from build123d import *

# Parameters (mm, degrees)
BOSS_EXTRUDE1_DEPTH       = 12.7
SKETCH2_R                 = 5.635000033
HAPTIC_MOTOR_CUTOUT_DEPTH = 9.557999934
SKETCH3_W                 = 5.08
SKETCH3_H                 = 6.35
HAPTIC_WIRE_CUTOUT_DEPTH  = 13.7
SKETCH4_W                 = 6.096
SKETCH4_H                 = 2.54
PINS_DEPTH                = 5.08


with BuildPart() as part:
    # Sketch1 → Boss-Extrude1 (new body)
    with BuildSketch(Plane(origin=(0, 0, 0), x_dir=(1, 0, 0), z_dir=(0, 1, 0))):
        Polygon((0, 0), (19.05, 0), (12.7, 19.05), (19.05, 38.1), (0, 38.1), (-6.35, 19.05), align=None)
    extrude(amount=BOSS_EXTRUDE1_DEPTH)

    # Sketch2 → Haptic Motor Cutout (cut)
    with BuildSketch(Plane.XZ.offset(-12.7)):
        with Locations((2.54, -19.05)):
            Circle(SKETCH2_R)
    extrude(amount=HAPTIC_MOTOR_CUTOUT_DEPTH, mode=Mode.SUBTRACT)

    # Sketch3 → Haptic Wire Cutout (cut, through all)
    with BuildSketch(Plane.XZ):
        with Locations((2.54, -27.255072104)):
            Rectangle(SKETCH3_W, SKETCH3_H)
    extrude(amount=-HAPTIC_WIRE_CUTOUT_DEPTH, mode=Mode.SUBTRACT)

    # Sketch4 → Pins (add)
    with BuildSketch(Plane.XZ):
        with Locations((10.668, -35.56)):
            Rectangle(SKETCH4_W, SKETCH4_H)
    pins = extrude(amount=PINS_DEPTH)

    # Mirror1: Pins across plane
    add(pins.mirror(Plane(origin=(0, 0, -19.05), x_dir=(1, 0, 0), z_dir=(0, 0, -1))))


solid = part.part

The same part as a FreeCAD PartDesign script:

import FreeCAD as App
import Part
import Sketcher
Q = App.Units.Quantity


def add_polygon(sketch, points):
    """Adds a closed chain of lines whose ends are joined by coincident constraints."""
    first, n = sketch.GeometryCount, len(points)
    for a, b in zip(points, points[1:] + points[:1]):
        sketch.addGeometry(Part.LineSegment(App.Vector(*a, 0), App.Vector(*b, 0)), False)
    for i in range(n):
        sketch.addConstraint(Sketcher.Constraint("Coincident", first + i, 2, first + (i + 1) % n, 1))

doc = App.newDocument("Part")
body = doc.addObject("PartDesign::Body", "Body")

# Sketch on XZ plane
sketch1 = doc.addObject("Sketcher::SketchObject", "Sketch")
body.addObject(sketch1)
sketch1.AttachmentSupport = (doc.XZ_Plane, [""])
sketch1.MapMode = "FlatFace"
add_polygon(sketch1, [(0, 0), (19, 0), (13, -19), (19, -38), (0, -38), (-6, -19)])  # lines 0-5
sketch1.addConstraint([
    Sketcher.Constraint("Horizontal", 0),
    Sketcher.Constraint("Horizontal", 3),
    Sketcher.Constraint("Coincident", 5, 2, -1, 1),
    Sketcher.Constraint("PointOnObject", 3, 2, -2),
    Sketcher.Constraint("Parallel", 2, 4),
    Sketcher.Constraint("Parallel", 1, 5),
    Sketcher.Constraint("Horizontal", 1, 2, 4, 2),
    Sketcher.Constraint("Equal", 1, 2),
    Sketcher.Constraint("DistanceX", 4, 2, 0, 2, Q("1 in")),
    Sketcher.Constraint("DistanceX", 0, 1, 0, 2, Q("0.75 in")),
    Sketcher.Constraint("DistanceY", 2, 2, -1, 1, Q("1.5 in")),
])
pad1 = doc.addObject("PartDesign::Pad", "Pad")
body.addObject(pad1)
pad1.Profile = sketch1
pad1.Length = Q("0.5 in")
pad1.Reversed = True

# Sketch on XZ plane
sketch2 = doc.addObject("Sketcher::SketchObject", "Sketch001")
body.addObject(sketch2)
sketch2.AttachmentSupport = (doc.XZ_Plane, [""])
sketch2.MapMode = "FlatFace"
sketch2.AttachmentOffset = App.Placement(App.Vector(0, 0, -0.5 * 25.4), App.Rotation())
sketch2.addGeometry(Part.Circle(App.Vector(3, -19, 0), App.Vector(0, 0, 1), 6), False)
sketch2.addConstraint([
    Sketcher.Constraint("DistanceX", -1, 1, 0, 3, Q("0.1 in")),
    Sketcher.Constraint("Diameter", 0, 11.27),
    Sketcher.Constraint("DistanceY", 0, 3, -1, 1, Q("0.75 in")),
])
pocket1 = doc.addObject("PartDesign::Pocket", "Pocket")
body.addObject(pocket1)
pocket1.Profile = sketch2
pocket1.Length = 9.558
pocket1.Reversed = True

# Sketch on XZ plane
sketch3 = doc.addObject("Sketcher::SketchObject", "Sketch002")
body.addObject(sketch3)
sketch3.AttachmentSupport = (doc.XZ_Plane, [""])
sketch3.MapMode = "FlatFace"
add_polygon(sketch3, [(0, -24), (0, -30), (5, -30), (5, -24)])  # lines 0-3
sketch3.addConstraint([
    Sketcher.Constraint("Vertical", 0),
    Sketcher.Constraint("Horizontal", 1),
    Sketcher.Constraint("Vertical", 2),
    Sketcher.Constraint("Horizontal", 3),
    Sketcher.Constraint("PointOnObject", 0, 2, -2),
    Sketcher.Constraint("DistanceX", 1, 1, 1, 2, Q("0.2 in")),
    Sketcher.Constraint("DistanceY", 0, 2, 0, 1, Q("0.25 in")),
    Sketcher.Constraint("DistanceY", 0, 2, -1, 1, 30.430072),
])
pocket2 = doc.addObject("PartDesign::Pocket", "Pocket001")
body.addObject(pocket2)
pocket2.Profile = sketch3
pocket2.Type = "ThroughAll"

# Sketch on XZ plane
sketch4 = doc.addObject("Sketcher::SketchObject", "Sketch003")
body.addObject(sketch4)
sketch4.AttachmentSupport = (doc.XZ_Plane, [""])
sketch4.MapMode = "FlatFace"
add_polygon(sketch4, [(7.6, -34.3), (7.6, -36.8), (13.7, -36.8), (13.7, -34.3)])  # lines 0-3
sketch4.addConstraint([
    Sketcher.Constraint("Vertical", 0),
    Sketcher.Constraint("Horizontal", 1),
    Sketcher.Constraint("Vertical", 2),
    Sketcher.Constraint("Horizontal", 3),
    Sketcher.Constraint("DistanceY", 0, 2, 0, 1, Q("0.1 in")),
    Sketcher.Constraint("DistanceX", 1, 1, 1, 2, Q("0.24 in")),
    Sketcher.Constraint("DistanceX", -1, 1, 0, 2, Q("0.3 in")),
    Sketcher.Constraint("DistanceY", 0, 2, -1, 1, Q("1.45 in")),
])
pad2 = doc.addObject("PartDesign::Pad", "Pad001")
body.addObject(pad2)
pad2.Profile = sketch4
pad2.Length = Q("0.2 in")
doc.recompute()

datumplane = doc.addObject("PartDesign::Plane", "DatumPlane")
body.addObject(datumplane)
datumplane.AttachmentSupport = (doc.XY_Plane, [""])
datumplane.MapMode = "FlatFace"
datumplane.AttachmentOffset = App.Placement(App.Vector(0, 0, -0.75 * 25.4), App.Rotation())
mirrored = doc.addObject("PartDesign::Mirrored", "Mirrored")
body.addObject(mirrored)
mirrored.Originals = [pad2]
mirrored.MirrorPlane = (datumplane, [""])
body.Tip = mirrored

doc.recompute()
